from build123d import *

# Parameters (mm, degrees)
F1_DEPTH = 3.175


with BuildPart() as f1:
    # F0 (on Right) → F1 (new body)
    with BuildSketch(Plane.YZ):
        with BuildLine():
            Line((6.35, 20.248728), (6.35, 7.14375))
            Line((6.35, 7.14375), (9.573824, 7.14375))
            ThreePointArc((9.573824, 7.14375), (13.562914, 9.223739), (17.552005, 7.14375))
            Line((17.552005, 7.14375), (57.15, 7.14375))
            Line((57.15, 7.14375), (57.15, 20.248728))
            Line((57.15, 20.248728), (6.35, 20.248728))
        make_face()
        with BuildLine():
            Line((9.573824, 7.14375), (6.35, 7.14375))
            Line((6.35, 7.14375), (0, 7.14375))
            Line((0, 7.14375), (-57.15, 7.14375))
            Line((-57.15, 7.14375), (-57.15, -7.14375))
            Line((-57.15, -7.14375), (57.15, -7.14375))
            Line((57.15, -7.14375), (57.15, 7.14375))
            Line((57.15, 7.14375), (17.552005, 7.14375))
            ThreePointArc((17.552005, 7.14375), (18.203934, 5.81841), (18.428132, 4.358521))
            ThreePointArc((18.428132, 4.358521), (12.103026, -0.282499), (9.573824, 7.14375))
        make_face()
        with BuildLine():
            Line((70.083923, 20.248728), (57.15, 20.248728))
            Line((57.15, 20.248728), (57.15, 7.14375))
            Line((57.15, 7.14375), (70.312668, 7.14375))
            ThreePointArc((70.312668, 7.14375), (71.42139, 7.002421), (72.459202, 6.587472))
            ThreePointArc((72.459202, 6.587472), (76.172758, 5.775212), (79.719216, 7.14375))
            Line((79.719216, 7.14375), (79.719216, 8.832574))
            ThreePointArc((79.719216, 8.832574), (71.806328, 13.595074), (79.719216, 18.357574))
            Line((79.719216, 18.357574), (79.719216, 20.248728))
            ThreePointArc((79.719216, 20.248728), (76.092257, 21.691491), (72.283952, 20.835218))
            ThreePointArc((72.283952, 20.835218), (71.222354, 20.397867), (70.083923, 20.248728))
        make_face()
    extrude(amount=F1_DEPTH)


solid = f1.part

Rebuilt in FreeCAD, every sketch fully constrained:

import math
import FreeCAD as App
import Part
import Sketcher

V = App.Vector
Q = App.Units.Quantity

doc = App.newDocument("Part")
body = doc.addObject("PartDesign::Body", "Body")

# Sketch on YZ plane
sketch1 = body.newObject("Sketcher::SketchObject", "Sketch")
sketch1.AttachmentSupport = (doc.getObject("YZ_Plane"), [""])
sketch1.MapMode = "FlatFace"
sketch1.addGeometry([
    Part.LineSegment(V(6.35, 20.248728, 0), V(6.35, 7.14375, 0)),  # 0
    Part.LineSegment(V(6.35, 7.14375, 0), V(-57.15, 7.14375, 0)),  # 1
    Part.LineSegment(V(-57.15, 7.14375, 0), V(-57.15, -7.14375, 0)),  # 2
    Part.LineSegment(V(-57.15, -7.14375, 0), V(57.15, -7.14375, 0)),  # 3
    Part.LineSegment(V(57.15, -7.14375, 0), V(57.15, 7.14375, 0)),  # 4
    Part.LineSegment(V(57.15, 7.14375, 0), V(70.312668, 7.14375, 0)),  # 5
    Part.ArcOfCircle(Part.Circle(V(70.312671, 2.724159, 0), V(0, 0, 1), 4.419591), math.radians(60.942603), math.radians(90.000033)),  # 6
    Part.ArcOfCircle(Part.Circle(V(75.668012, 12.362672, 0), V(0, 0, 1), 6.606769), math.radians(-119.057375), math.radians(-52.179494)),  # 7
    Part.LineSegment(V(79.719216, 7.14375, 0), V(79.719216, 8.832574, 0)),  # 8
    Part.ArcOfCircle(Part.Circle(V(77.195966, 13.595074, 0), V(0, 0, 1), 5.389638), math.radians(62.084629), math.radians(297.915371)),  # 9
    Part.LineSegment(V(79.719216, 18.357574, 0), V(79.719216, 20.248728, 0)),  # 10
    Part.ArcOfCircle(Part.Circle(V(75.572732, 15.105174, 0), V(0, 0, 1), 6.606775), math.radians(51.125922), math.radians(119.853829)),  # 11
    Part.ArcOfCircle(Part.Circle(V(70.083922, 24.668327, 0), V(0, 0, 1), 4.419599), math.radians(-89.999991), math.radians(-60.146142)),  # 12
    Part.LineSegment(V(70.083923, 20.248728, 0), V(6.35, 20.248728, 0)),  # 13
    Part.ArcOfCircle(Part.Circle(V(13.562914, 4.358522, 0), V(0, 0, 1), 4.865217), math.radians(34.923184), math.radians(145.076816)),  # 14
    Part.ArcOfCircle(Part.Circle(V(13.562905, 4.358518, 0), V(0, 0, 1), 4.865227), math.radians(0.000032), math.radians(34.923149)),  # 15
    Part.ArcOfCircle(Part.Circle(V(13.562914, 4.358521, 0), V(0, 0, 1), 4.865218), math.radians(145.076811), math.radians(359.999998)),  # 16
], False)
sketch1.addConstraint([
    Sketcher.Constraint("Coincident", 0, 2, 1, 1),
    Sketcher.Constraint("Coincident", 1, 2, 2, 1),
    Sketcher.Constraint("Coincident", 2, 2, 3, 1),
    Sketcher.Constraint("Coincident", 3, 2, 4, 1),
    Sketcher.Constraint("Coincident", 4, 2, 5, 1),
    Sketcher.Constraint("Coincident", 5, 2, 6, 2),
    Sketcher.Constraint("Coincident", 6, 1, 7, 1),
    Sketcher.Constraint("Coincident", 7, 2, 8, 1),
    Sketcher.Constraint("Coincident", 8, 2, 9, 2),
    Sketcher.Constraint("Coincident", 9, 1, 10, 1),
    Sketcher.Constraint("Coincident", 10, 2, 11, 1),
    Sketcher.Constraint("Coincident", 11, 2, 12, 2),
    Sketcher.Constraint("Coincident", 12, 1, 13, 1),
    Sketcher.Constraint("Coincident", 13, 2, 0, 1),
    Sketcher.Constraint("Coincident", 14, 1, 15, 2),
    Sketcher.Constraint("Coincident", 15, 1, 16, 2),
    Sketcher.Constraint("Coincident", 16, 1, 14, 2),
    Sketcher.Constraint("Vertical", 0),
    Sketcher.Constraint("Horizontal", 1),
    Sketcher.Constraint("Vertical", 2),
    Sketcher.Constraint("Horizontal", 3),
    Sketcher.Constraint("Vertical", 4),
    Sketcher.Constraint("Horizontal", 5),
    Sketcher.Constraint("Vertical", 8),
    Sketcher.Constraint("Vertical", 10),
    Sketcher.Constraint("Horizontal", 13),
    Sketcher.Constraint("Coincident", 16, 3, 14, 3),
    Sketcher.Constraint("DistanceX", 1, 2, 1, 1, Q("2.5 in")),
    Sketcher.Constraint("DistanceX", 3, 1, 3, 2, Q("4.5 in")),
    Sketcher.Constraint("Radius", 12, Q("0.174 in")),
    Sketcher.Constraint("DistanceY", 2, 2, 2, 1, Q("0.5625 in")),
    Sketcher.Constraint("DistanceY", 4, 1, 4, 2, Q("0.5625 in")),
    Sketcher.Constraint("DistanceX", -1, 1, 0, 2, Q("0.25 in")),
    Sketcher.Constraint("DistanceY", -1, 1, 0, 2, Q("0.28125 in")),
    Sketcher.Constraint("DistanceY", -1, 1, 7, 2, Q("0.28125 in")),
    Sketcher.Constraint("DistanceY", -1, 1, 14, 1, Q("0.28125 in")),
    Sketcher.Constraint("DistanceY", -1, 1, 16, 1, Q("0.28125 in")),
    Sketcher.Constraint("Radius", 6, Q("4.419591 mm")),
    Sketcher.Constraint("Radius", 7, Q("6.606769 mm")),
    Sketcher.Constraint("DistanceY", 8, 2, 9, 3, Q("0.1875 in")),
    Sketcher.Constraint("DistanceY", 9, 3, 9, 1, Q("0.1875 in")),
    Sketcher.Constraint("DistanceY", 10, 2, 12, 3, Q("0.174 in")),
    Sketcher.Constraint("Radius", 9, Q("5.389638 mm")),
    Sketcher.Constraint("Radius", 11, Q("6.606775 mm")),
    Sketcher.Constraint("Radius", 14, Q("4.865217 mm")),
    Sketcher.Constraint("Radius", 15, Q("4.865227 mm")),
    Sketcher.Constraint("DistanceX", 5, 1, 5, 2, Q("13.162668 mm")),
    Sketcher.Constraint("DistanceY", 7, 3, 9, 3, Q("1.232402 mm")),
    Sketcher.Constraint("DistanceY", 9, 3, 11, 3, Q("1.5101 mm")),
    Sketcher.Constraint("DistanceY", 6, 1, 7, 3, Q("5.7752 mm")),
    Sketcher.Constraint("DistanceX", 15, 3, 14, 1, Q("3.9891 mm")),
    Sketcher.Constraint("DistanceX", 13, 2, 13, 1, Q("63.733923 mm")),
    Sketcher.Constraint("DistanceY", 0, 2, 0, 1, Q("13.104978 mm")),
    Sketcher.Constraint("DistanceY", 8, 1, 8, 2, Q("1.688824 mm")),
    Sketcher.Constraint("DistanceX", -1, 1, 6, 3, Q("70.312671 mm")),
    Sketcher.Constraint("DistanceX", -1, 1, 11, 2, Q("72.283952 mm")),
    Sketcher.Constraint("DistanceX", -1, 1, 15, 1, Q("18.428132 mm")),
    Sketcher.Constraint("DistanceY", -1, 1, 15, 1, Q("4.358521 mm")),
])
pad1 = body.newObject("PartDesign::Pad", "Pad")
pad1.Profile = sketch1
pad1.Length = Q("0.125 in")

doc.recompute()
